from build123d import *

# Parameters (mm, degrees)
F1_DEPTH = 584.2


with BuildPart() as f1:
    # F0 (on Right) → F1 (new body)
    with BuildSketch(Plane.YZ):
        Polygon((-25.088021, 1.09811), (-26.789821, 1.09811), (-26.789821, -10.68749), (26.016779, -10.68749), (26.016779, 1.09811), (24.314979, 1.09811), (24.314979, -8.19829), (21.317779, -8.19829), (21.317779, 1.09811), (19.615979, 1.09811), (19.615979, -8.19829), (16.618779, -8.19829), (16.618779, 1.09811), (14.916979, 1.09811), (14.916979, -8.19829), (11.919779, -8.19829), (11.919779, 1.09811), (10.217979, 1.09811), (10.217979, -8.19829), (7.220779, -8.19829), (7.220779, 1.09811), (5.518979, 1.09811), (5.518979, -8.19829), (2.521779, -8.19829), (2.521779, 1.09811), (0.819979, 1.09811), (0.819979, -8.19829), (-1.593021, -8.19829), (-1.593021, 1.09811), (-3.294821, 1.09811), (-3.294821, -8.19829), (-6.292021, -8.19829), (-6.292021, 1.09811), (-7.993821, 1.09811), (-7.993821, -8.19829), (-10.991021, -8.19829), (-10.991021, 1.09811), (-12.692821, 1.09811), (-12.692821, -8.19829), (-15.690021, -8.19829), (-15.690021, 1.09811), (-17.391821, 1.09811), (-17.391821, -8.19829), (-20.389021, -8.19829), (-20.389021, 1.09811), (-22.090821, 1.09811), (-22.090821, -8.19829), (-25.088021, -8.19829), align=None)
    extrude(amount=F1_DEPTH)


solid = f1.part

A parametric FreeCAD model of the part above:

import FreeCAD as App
import Part
import Sketcher

V = App.Vector
Q = App.Units.Quantity

doc = App.newDocument("Part")
body = doc.addObject("PartDesign::Body", "Body")

# Sketch on YZ plane
sketch1 = body.newObject("Sketcher::SketchObject", "Sketch")
sketch1.AttachmentSupport = (doc.getObject("YZ_Plane"), [""])
sketch1.MapMode = "FlatFace"
sketch1.addGeometry([
    Part.LineSegment(V(-25.1, 1.1, 0), V(-26.8, 1.1, 0)),  # 0
    Part.LineSegment(V(-26.8, 1.1, 0), V(-26.8, -10.7, 0)),  # 1
    Part.LineSegment(V(-26.8, -10.7, 0), V(26, -10.7, 0)),  # 2
    Part.LineSegment(V(26, -10.7, 0), V(26, 1.1, 0)),  # 3
    Part.LineSegment(V(26, 1.1, 0), V(24.3, 1.1, 0)),  # 4
    Part.LineSegment(V(24.3, 1.1, 0), V(24.3, -8.2, 0)),  # 5
    Part.LineSegment(V(24.3, -8.2, 0), V(21.3, -8.2, 0)),  # 6
    Part.LineSegment(V(21.3, -8.2, 0), V(21.3, 1.1, 0)),  # 7
    Part.LineSegment(V(21.3, 1.1, 0), V(19.6, 1.1, 0)),  # 8
    Part.LineSegment(V(19.6, 1.1, 0), V(19.6, -8.2, 0)),  # 9
    Part.LineSegment(V(19.6, -8.2, 0), V(16.6, -8.2, 0)),  # 10
    Part.LineSegment(V(16.6, -8.2, 0), V(16.6, 1.1, 0)),  # 11
    Part.LineSegment(V(16.6, 1.1, 0), V(14.9, 1.1, 0)),  # 12
    Part.LineSegment(V(14.9, 1.1, 0), V(14.9, -8.2, 0)),  # 13
    Part.LineSegment(V(14.9, -8.2, 0), V(11.9, -8.2, 0)),  # 14
    Part.LineSegment(V(11.9, -8.2, 0), V(11.9, 1.1, 0)),  # 15
    Part.LineSegment(V(11.9, 1.1, 0), V(10.2, 1.1, 0)),  # 16
    Part.LineSegment(V(10.2, 1.1, 0), V(10.2, -8.2, 0)),  # 17
    Part.LineSegment(V(10.2, -8.2, 0), V(7.2, -8.2, 0)),  # 18
    Part.LineSegment(V(7.2, -8.2, 0), V(7.2, 1.1, 0)),  # 19
    Part.LineSegment(V(7.2, 1.1, 0), V(5.5, 1.1, 0)),  # 20
    Part.LineSegment(V(5.5, 1.1, 0), V(5.5, -8.2, 0)),  # 21
    Part.LineSegment(V(5.5, -8.2, 0), V(2.5, -8.2, 0)),  # 22
    Part.LineSegment(V(2.5, -8.2, 0), V(2.5, 1.1, 0)),  # 23
    Part.LineSegment(V(2.5, 1.1, 0), V(0.8, 1.1, 0)),  # 24
    Part.LineSegment(V(0.8, 1.1, 0), V(0.8, -8.2, 0)),  # 25
    Part.LineSegment(V(0.8, -8.2, 0), V(-1.6, -8.2, 0)),  # 26
    Part.LineSegment(V(-1.6, -8.2, 0), V(-1.6, 1.1, 0)),  # 27
    Part.LineSegment(V(-1.6, 1.1, 0), V(-3.3, 1.1, 0)),  # 28
    Part.LineSegment(V(-3.3, 1.1, 0), V(-3.3, -8.2, 0)),  # 29
    Part.LineSegment(V(-3.3, -8.2, 0), V(-6.3, -8.2, 0)),  # 30
    Part.LineSegment(V(-6.3, -8.2, 0), V(-6.3, 1.1, 0)),  # 31
    Part.LineSegment(V(-6.3, 1.1, 0), V(-8, 1.1, 0)),  # 32
    Part.LineSegment(V(-8, 1.1, 0), V(-8, -8.2, 0)),  # 33
    Part.LineSegment(V(-8, -8.2, 0), V(-11, -8.2, 0)),  # 34
    Part.LineSegment(V(-11, -8.2, 0), V(-11, 1.1, 0)),  # 35
    Part.LineSegment(V(-11, 1.1, 0), V(-12.7, 1.1, 0)),  # 36
    Part.LineSegment(V(-12.7, 1.1, 0), V(-12.7, -8.2, 0)),  # 37
    Part.LineSegment(V(-12.7, -8.2, 0), V(-15.7, -8.2, 0)),  # 38
    Part.LineSegment(V(-15.7, -8.2, 0), V(-15.7, 1.1, 0)),  # 39
    Part.LineSegment(V(-15.7, 1.1, 0), V(-17.4, 1.1, 0)),  # 40
    Part.LineSegment(V(-17.4, 1.1, 0), V(-17.4, -8.2, 0)),  # 41
    Part.LineSegment(V(-17.4, -8.2, 0), V(-20.4, -8.2, 0)),  # 42
    Part.LineSegment(V(-20.4, -8.2, 0), V(-20.4, 1.1, 0)),  # 43
    Part.LineSegment(V(-20.4, 1.1, 0), V(-22.1, 1.1, 0)),  # 44
    Part.LineSegment(V(-22.1, 1.1, 0), V(-22.1, -8.2, 0)),  # 45
    Part.LineSegment(V(-22.1, -8.2, 0), V(-25.1, -8.2, 0)),  # 46
    Part.LineSegment(V(-25.1, -8.2, 0), V(-25.1, 1.1, 0)),  # 47
], False)
sketch1.addConstraint([
    Sketcher.Constraint("Coincident", 0, 2, 1, 1),
    Sketcher.Constraint("Coincident", 1, 2, 2, 1),
    Sketcher.Constraint("Coincident", 2, 2, 3, 1),
    Sketcher.Constraint("Coincident", 3, 2, 4, 1),
    Sketcher.Constraint("Coincident", 4, 2, 5, 1),
    Sketcher.Constraint("Coincident", 5, 2, 6, 1),
    Sketcher.Constraint("Coincident", 6, 2, 7, 1),
    Sketcher.Constraint("Coincident", 7, 2, 8, 1),
    Sketcher.Constraint("Coincident", 8, 2, 9, 1),
    Sketcher.Constraint("Coincident", 9, 2, 10, 1),
    Sketcher.Constraint("Coincident", 10, 2, 11, 1),
    Sketcher.Constraint("Coincident", 11, 2, 12, 1),
    Sketcher.Constraint("Coincident", 12, 2, 13, 1),
    Sketcher.Constraint("Coincident", 13, 2, 14, 1),
    Sketcher.Constraint("Coincident", 14, 2, 15, 1),
    Sketcher.Constraint("Coincident", 15, 2, 16, 1),
    Sketcher.Constraint("Coincident", 16, 2, 17, 1),
    Sketcher.Constraint("Coincident", 17, 2, 18, 1),
    Sketcher.Constraint("Coincident", 18, 2, 19, 1),
    Sketcher.Constraint("Coincident", 19, 2, 20, 1),
    Sketcher.Constraint("Coincident", 20, 2, 21, 1),
    Sketcher.Constraint("Coincident", 21, 2, 22, 1),
    Sketcher.Constraint("Coincident", 22, 2, 23, 1),
    Sketcher.Constraint("Coincident", 23, 2, 24, 1),
    Sketcher.Constraint("Coincident", 24, 2, 25, 1),
    Sketcher.Constraint("Coincident", 25, 2, 26, 1),
    Sketcher.Constraint("Coincident", 26, 2, 27, 1),
    Sketcher.Constraint("Coincident", 27, 2, 28, 1),
    Sketcher.Constraint("Coincident", 28, 2, 29, 1),
    Sketcher.Constraint("Coincident", 29, 2, 30, 1),
    Sketcher.Constraint("Coincident", 30, 2, 31, 1),
    Sketcher.Constraint("Coincident", 31, 2, 32, 1),
    Sketcher.Constraint("Coincident", 32, 2, 33, 1),
    Sketcher.Constraint("Coincident", 33, 2, 34, 1),
    Sketcher.Constraint("Coincident", 34, 2, 35, 1),
    Sketcher.Constraint("Coincident", 35, 2, 36, 1),
    Sketcher.Constraint("Coincident", 36, 2, 37, 1),
    Sketcher.Constraint("Coincident", 37, 2, 38, 1),
    Sketcher.Constraint("Coincident", 38, 2, 39, 1),
    Sketcher.Constraint("Coincident", 39, 2, 40, 1),
    Sketcher.Constraint("Coincident", 40, 2, 41, 1),
    Sketcher.Constraint("Coincident", 41, 2, 42, 1),
    Sketcher.Constraint("Coincident", 42, 2, 43, 1),
    Sketcher.Constraint("Coincident", 43, 2, 44, 1),
    Sketcher.Constraint("Coincident", 44, 2, 45, 1),
    Sketcher.Constraint("Coincident", 45, 2, 46, 1),
    Sketcher.Constraint("Coincident", 46, 2, 47, 1),
    Sketcher.Constraint("Coincident", 47, 2, 0, 1),
    Sketcher.Constraint("Horizontal", 0),
    Sketcher.Constraint("Vertical", 1),
    Sketcher.Constraint("Horizontal", 2),
    Sketcher.Constraint("Vertical", 3),
    Sketcher.Constraint("Horizontal", 4),
    Sketcher.Constraint("Vertical", 5),
    Sketcher.Constraint("Horizontal", 6),
    Sketcher.Constraint("Vertical", 7),
    Sketcher.Constraint("Horizontal", 8),
    Sketcher.Constraint("Vertical", 9),
    Sketcher.Constraint("Horizontal", 10),
    Sketcher.Constraint("Vertical", 11),
    Sketcher.Constraint("Horizontal", 12),
    Sketcher.Constraint("Vertical", 13),
    Sketcher.Constraint("Horizontal", 14),
    Sketcher.Constraint("Vertical", 15),
    Sketcher.Constraint("Horizontal", 16),
    Sketcher.Constraint("Vertical", 17),
    Sketcher.Constraint("Horizontal", 18),
    Sketcher.Constraint("Vertical", 19),
    Sketcher.Constraint("Horizontal", 20),
    Sketcher.Constraint("Vertical", 21),
    Sketcher.Constraint("Horizontal", 22),
    Sketcher.Constraint("Vertical", 23),
    Sketcher.Constraint("Horizontal", 24),
    Sketcher.Constraint("Vertical", 25),
    Sketcher.Constraint("Horizontal", 26),
    Sketcher.Constraint("Vertical", 27),
    Sketcher.Constraint("Horizontal", 28),
    Sketcher.Constraint("Vertical", 29),
    Sketcher.Constraint("Horizontal", 30),
    Sketcher.Constraint("Vertical", 31),
    Sketcher.Constraint("Horizontal", 32),
    Sketcher.Constraint("Vertical", 33),
    Sketcher.Constraint("Horizontal", 34),
    Sketcher.Constraint("Vertical", 35),
    Sketcher.Constraint("Horizontal", 36),
    Sketcher.Constraint("Vertical", 37),
    Sketcher.Constraint("Horizontal", 38),
    Sketcher.Constraint("Vertical", 39),
    Sketcher.Constraint("Horizontal", 40),
    Sketcher.Constraint("Vertical", 41),
    Sketcher.Constraint("Horizontal", 42),
    Sketcher.Constraint("Vertical", 43),
    Sketcher.Constraint("Horizontal", 44),
    Sketcher.Constraint("Vertical", 45),
    Sketcher.Constraint("Horizontal", 46),
    Sketcher.Constraint("Vertical", 47),
    Sketcher.Constraint("Horizontal", 0, 2, 3, 2),
    Sketcher.Constraint("Horizontal", 4, 2, 7, 2),
    Sketcher.Constraint("Horizontal", 6, 2, 9, 2),
    Sketcher.Constraint("Horizontal", 8, 2, 11, 2),
    Sketcher.Constraint("Horizontal", 10, 2, 13, 2),
    Sketcher.Constraint("Horizontal", 12, 2, 15, 2),
    Sketcher.Constraint("Horizontal", 14, 2, 17, 2),
    Sketcher.Constraint("Horizontal", 16, 2, 19, 2),
    Sketcher.Constraint("Horizontal", 18, 2, 21, 2),
    Sketcher.Constraint("Horizontal", 20, 2, 23, 2),
    Sketcher.Constraint("Horizontal", 22, 2, 25, 2),
    Sketcher.Constraint("Horizontal", 24, 2, 27, 2),
    Sketcher.Constraint("Horizontal", 26, 2, 29, 2),
    Sketcher.Constraint("Horizontal", 28, 2, 31, 2),
    Sketcher.Constraint("Horizontal", 30, 2, 33, 2),
    Sketcher.Constraint("Horizontal", 32, 2, 35, 2),
    Sketcher.Constraint("Horizontal", 34, 2, 37, 2),
    Sketcher.Constraint("Horizontal", 36, 2, 39, 2),
    Sketcher.Constraint("Horizontal", 38, 2, 41, 2),
    Sketcher.Constraint("Horizontal", 40, 2, 43, 2),
    Sketcher.Constraint("Horizontal", 42, 2, 45, 2),
    Sketcher.Constraint("Equal", 0, 4),
    Sketcher.Constraint("Equal", 4, 8),
    Sketcher.Constraint("Equal", 6, 10),
    Sketcher.Constraint("Equal", 8, 12),
    Sketcher.Constraint("Equal", 10, 14),
    Sketcher.Constraint("Equal", 12, 16),
    Sketcher.Constraint("Equal", 14, 18),
    Sketcher.Constraint("Equal", 16, 20),
    Sketcher.Constraint("Equal", 18, 22),
    Sketcher.Constraint("Equal", 20, 24),
    Sketcher.Constraint("Equal", 24, 28),
    Sketcher.Constraint("Equal", 22, 30),
    Sketcher.Constraint("Equal", 28, 32),
    Sketcher.Constraint("Equal", 30, 34),
    Sketcher.Constraint("Equal", 32, 36),
    Sketcher.Constraint("Equal", 34, 38),
    Sketcher.Constraint("Equal", 36, 40),
    Sketcher.Constraint("Equal", 38, 42),
    Sketcher.Constraint("Equal", 40, 44),
    Sketcher.Constraint("Equal", 42, 46),
    Sketcher.Constraint("DistanceX", 0, 2, 0, 1, Q("0.067 in")),
    Sketcher.Constraint("DistanceX", 2, 1, 2, 2, Q("2.079 in")),
    Sketcher.Constraint("DistanceX", 6, 2, 6, 1, Q("0.118 in")),
    Sketcher.Constraint("DistanceY", 1, 2, 1, 1, Q("0.464 in")),
    Sketcher.Constraint("DistanceY", 5, 2, 5, 1, Q("0.366 in")),
    Sketcher.Constraint("DistanceX", 0, 2, -1, 1, Q("26.789821 mm")),
    Sketcher.Constraint("DistanceY", -1, 1, 0, 2, Q("1.09811 mm")),
])
pad1 = body.newObject("PartDesign::Pad", "Pad")
pad1.Profile = sketch1
pad1.Length = Q("23 in")

doc.recompute()
